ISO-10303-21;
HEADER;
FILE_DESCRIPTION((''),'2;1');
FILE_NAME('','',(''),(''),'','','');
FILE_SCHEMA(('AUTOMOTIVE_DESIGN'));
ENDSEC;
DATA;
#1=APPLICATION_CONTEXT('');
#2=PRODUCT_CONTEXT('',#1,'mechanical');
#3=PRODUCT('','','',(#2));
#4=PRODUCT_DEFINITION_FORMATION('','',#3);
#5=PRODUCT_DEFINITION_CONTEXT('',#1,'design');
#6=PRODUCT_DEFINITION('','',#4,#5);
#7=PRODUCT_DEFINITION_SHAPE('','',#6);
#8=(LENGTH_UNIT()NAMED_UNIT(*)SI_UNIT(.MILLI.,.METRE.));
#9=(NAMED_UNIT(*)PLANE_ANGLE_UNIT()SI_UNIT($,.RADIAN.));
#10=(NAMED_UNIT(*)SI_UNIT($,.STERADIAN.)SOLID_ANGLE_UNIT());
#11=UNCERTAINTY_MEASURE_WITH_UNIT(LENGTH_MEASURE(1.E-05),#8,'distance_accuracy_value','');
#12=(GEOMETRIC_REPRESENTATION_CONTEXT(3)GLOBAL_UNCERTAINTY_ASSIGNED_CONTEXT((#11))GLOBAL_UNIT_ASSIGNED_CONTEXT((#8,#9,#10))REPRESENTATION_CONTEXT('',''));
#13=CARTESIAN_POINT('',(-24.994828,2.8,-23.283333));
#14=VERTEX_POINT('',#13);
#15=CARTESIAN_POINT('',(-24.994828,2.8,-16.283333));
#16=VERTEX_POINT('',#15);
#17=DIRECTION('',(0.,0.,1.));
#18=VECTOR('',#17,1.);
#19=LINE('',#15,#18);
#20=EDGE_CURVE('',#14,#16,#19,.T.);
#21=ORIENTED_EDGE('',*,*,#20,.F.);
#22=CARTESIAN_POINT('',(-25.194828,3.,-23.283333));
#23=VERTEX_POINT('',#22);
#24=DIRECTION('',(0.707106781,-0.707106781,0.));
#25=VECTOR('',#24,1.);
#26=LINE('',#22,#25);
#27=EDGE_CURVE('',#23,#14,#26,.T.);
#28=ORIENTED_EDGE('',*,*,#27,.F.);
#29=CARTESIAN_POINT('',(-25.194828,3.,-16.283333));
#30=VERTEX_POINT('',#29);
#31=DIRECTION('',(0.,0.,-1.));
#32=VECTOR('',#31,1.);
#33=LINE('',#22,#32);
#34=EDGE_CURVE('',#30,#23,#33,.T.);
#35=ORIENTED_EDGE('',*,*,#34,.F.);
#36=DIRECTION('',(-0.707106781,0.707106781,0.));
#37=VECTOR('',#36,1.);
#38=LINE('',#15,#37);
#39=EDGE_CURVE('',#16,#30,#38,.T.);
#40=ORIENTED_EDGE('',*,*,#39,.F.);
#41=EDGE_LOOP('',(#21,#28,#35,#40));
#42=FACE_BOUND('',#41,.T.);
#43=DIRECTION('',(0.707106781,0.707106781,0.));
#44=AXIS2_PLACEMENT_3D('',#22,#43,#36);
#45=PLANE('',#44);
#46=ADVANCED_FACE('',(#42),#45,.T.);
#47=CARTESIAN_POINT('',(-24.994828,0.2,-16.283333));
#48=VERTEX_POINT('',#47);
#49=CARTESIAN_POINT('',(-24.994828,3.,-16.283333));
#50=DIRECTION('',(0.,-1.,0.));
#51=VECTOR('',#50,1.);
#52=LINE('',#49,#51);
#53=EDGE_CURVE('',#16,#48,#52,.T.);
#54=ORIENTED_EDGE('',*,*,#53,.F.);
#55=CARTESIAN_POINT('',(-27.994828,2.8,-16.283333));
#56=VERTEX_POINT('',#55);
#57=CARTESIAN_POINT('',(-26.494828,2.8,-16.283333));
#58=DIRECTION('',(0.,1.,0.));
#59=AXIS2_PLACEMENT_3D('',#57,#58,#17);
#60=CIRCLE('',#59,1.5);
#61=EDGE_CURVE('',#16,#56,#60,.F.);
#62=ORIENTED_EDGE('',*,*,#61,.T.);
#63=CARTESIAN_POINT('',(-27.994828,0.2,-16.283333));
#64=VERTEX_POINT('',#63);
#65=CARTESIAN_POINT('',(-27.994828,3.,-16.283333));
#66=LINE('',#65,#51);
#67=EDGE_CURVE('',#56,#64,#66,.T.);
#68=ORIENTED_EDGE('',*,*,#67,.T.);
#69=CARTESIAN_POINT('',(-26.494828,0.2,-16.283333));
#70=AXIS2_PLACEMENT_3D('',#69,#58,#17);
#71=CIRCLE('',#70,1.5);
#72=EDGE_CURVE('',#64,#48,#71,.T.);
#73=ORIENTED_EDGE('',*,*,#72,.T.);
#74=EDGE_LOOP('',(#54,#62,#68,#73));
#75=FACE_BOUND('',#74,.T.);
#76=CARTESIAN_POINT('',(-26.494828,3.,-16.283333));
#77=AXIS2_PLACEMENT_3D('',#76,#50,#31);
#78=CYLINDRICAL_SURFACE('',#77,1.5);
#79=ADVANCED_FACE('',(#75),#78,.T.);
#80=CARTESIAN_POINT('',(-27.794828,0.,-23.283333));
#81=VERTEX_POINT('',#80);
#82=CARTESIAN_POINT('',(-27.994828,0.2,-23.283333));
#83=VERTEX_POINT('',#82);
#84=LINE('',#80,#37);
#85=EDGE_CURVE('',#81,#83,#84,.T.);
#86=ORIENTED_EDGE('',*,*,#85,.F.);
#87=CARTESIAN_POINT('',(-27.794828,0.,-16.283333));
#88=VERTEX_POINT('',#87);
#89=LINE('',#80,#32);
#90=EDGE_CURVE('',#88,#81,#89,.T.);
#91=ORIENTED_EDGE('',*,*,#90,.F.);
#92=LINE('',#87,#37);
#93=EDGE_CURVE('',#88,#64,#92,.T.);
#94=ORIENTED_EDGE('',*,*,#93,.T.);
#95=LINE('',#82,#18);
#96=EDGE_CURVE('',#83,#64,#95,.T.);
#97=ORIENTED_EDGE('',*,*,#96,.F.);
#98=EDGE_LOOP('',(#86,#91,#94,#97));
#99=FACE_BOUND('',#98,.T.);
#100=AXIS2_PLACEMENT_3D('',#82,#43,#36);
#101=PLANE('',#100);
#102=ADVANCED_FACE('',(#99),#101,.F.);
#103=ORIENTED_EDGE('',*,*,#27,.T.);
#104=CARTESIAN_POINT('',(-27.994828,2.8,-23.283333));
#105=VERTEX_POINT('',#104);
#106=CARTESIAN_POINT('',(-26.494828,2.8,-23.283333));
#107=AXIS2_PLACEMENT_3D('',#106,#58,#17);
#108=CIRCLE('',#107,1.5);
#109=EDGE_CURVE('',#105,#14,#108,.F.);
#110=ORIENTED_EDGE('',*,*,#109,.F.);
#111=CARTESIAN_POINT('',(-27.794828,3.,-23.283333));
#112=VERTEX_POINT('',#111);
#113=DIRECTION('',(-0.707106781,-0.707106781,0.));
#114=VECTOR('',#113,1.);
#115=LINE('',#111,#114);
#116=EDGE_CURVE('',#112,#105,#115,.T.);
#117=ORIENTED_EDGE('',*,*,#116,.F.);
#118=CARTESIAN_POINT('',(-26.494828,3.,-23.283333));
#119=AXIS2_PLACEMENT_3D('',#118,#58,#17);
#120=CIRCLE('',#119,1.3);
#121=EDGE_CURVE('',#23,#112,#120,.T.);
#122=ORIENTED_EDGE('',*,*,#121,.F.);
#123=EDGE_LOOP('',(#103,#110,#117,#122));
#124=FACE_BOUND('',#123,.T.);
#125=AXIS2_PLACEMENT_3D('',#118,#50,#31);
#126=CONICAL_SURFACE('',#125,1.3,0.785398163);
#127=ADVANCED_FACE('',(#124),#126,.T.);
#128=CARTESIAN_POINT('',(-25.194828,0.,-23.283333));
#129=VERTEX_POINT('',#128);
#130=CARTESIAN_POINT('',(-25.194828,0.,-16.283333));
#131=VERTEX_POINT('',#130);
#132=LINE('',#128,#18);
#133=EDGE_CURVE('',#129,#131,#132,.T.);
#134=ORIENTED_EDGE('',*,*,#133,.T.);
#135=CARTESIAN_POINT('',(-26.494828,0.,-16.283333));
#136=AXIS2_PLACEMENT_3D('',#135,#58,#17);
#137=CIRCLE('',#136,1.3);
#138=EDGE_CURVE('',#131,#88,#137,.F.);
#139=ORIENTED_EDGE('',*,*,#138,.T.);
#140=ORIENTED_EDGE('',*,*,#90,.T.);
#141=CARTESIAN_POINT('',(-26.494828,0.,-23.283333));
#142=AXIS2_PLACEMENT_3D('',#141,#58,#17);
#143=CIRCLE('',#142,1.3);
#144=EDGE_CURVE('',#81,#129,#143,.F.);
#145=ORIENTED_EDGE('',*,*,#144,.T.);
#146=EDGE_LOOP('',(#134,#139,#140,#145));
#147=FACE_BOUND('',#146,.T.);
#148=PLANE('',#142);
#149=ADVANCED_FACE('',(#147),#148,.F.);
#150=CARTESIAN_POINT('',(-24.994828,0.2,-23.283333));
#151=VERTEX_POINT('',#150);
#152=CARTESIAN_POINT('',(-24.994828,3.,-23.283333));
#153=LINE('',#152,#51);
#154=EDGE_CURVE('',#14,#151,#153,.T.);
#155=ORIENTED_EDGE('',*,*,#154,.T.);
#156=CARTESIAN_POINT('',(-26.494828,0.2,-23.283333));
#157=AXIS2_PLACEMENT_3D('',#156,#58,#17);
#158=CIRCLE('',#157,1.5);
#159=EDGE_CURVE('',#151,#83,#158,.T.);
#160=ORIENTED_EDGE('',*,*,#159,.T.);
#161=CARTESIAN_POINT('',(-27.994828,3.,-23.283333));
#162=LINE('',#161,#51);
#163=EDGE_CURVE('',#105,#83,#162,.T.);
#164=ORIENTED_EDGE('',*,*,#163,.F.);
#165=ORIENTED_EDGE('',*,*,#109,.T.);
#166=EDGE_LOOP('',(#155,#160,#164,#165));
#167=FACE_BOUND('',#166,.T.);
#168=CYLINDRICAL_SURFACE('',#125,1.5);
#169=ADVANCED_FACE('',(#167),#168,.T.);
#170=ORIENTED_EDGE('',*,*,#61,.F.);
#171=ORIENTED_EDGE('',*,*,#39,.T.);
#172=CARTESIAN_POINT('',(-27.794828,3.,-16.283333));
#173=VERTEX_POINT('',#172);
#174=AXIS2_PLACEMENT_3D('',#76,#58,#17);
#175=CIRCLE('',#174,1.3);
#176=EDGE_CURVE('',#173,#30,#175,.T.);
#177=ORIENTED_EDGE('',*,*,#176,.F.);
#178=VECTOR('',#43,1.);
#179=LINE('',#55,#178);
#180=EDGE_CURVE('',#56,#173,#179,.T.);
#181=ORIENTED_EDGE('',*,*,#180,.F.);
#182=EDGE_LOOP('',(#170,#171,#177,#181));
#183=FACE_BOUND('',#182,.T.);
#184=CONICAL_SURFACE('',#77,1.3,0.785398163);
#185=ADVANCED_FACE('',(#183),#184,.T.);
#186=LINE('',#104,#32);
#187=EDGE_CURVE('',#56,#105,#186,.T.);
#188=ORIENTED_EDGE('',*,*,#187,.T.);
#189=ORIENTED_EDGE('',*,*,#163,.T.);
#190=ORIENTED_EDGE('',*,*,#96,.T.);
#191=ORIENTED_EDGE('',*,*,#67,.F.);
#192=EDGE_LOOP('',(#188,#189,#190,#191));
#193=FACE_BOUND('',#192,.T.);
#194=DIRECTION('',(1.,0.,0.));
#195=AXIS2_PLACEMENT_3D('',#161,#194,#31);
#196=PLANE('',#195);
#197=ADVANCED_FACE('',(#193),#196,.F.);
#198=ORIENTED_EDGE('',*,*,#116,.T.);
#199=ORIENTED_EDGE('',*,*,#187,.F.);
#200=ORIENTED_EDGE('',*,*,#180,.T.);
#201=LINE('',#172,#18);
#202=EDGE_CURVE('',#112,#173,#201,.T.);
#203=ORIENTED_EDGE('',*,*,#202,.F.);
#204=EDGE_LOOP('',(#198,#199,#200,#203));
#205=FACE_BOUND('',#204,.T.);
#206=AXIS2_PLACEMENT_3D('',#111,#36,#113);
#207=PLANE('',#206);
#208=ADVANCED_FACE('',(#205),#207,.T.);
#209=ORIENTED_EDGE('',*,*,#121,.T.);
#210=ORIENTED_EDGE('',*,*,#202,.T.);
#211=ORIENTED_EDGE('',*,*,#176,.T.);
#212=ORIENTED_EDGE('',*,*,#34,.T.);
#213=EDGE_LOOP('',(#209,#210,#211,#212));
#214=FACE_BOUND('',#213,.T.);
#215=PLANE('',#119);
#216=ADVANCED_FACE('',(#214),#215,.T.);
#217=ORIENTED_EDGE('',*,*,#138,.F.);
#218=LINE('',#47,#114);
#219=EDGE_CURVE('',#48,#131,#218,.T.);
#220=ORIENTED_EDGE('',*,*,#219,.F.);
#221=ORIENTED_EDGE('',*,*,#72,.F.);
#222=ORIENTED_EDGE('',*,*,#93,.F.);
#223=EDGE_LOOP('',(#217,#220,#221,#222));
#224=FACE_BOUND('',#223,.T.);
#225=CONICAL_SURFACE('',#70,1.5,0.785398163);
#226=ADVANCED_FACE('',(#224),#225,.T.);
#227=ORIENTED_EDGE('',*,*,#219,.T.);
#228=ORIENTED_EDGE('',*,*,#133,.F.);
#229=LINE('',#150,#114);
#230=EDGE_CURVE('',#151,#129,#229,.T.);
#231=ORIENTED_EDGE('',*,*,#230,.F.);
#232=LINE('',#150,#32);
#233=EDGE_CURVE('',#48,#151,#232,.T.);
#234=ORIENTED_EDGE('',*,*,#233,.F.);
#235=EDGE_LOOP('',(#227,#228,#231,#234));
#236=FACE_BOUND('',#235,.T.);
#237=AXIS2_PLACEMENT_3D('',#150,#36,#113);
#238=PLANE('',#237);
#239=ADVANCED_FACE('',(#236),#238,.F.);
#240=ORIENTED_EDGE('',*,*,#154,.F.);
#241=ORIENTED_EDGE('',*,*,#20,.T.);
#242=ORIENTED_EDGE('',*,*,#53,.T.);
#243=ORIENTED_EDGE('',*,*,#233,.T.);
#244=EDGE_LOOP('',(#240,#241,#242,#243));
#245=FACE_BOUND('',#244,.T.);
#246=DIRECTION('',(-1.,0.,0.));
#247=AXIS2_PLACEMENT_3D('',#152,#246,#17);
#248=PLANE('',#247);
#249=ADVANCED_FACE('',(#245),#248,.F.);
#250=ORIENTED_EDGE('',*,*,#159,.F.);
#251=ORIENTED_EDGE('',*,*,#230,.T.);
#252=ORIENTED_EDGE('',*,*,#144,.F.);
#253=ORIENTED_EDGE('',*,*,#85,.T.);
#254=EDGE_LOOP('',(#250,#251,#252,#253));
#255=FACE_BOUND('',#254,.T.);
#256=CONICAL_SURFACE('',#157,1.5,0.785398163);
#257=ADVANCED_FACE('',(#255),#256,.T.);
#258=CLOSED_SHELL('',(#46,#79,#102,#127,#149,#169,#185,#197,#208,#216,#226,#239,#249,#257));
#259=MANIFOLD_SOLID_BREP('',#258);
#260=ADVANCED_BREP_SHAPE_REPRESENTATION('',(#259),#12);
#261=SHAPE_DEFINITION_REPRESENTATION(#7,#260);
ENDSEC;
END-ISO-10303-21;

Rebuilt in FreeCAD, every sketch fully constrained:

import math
import FreeCAD as App
import Part
import Sketcher
from FreeCAD import Vector
Q = App.Units.Quantity


def edges_at(feature, points):
    """Names of the edges that pass closest to the given points."""
    edges = feature.Shape.Edges
    near = lambda p: min(range(len(edges)), key=lambda i: edges[i].distToShape(Part.Vertex(*p))[0])
    return sorted({f"Edge{near(p) + 1}" for p in points})

doc = App.newDocument("Part")
body = doc.addObject("PartDesign::Body", "Body")

sketch1 = body.newObject("Sketcher::SketchObject", "Sketch")
sketch1.AttachmentSupport = (doc.getObject("XZ_Plane"), [""])
sketch1.MapMode = "FlatFace"
sketch1.addGeometry(Part.LineSegment(Vector(-24.994828, -16.283333, 0), Vector(-24.994828, -23.283333, 0)), False)
sketch1.addGeometry(Part.ArcOfCircle(Part.Circle(Vector(-26.494828, -23.283333, 0), Vector(0, 0, 1), 1.5), math.radians(180), math.radians(360)), False)
sketch1.addGeometry(Part.LineSegment(Vector(-27.994828, -23.283333, 0), Vector(-27.994828, -16.283333, 0)), False)
sketch1.addGeometry(Part.ArcOfCircle(Part.Circle(Vector(-26.494828, -16.283333, 0), Vector(0, 0, 1), 1.5), math.radians(0), math.radians(180)), False)
sketch1.addConstraint(Sketcher.Constraint("Tangent", 0, 2, 1, 2))
sketch1.addConstraint(Sketcher.Constraint("Tangent", 1, 1, 2, 1))
sketch1.addConstraint(Sketcher.Constraint("Tangent", 2, 2, 3, 2))
sketch1.addConstraint(Sketcher.Constraint("Tangent", 3, 1, 0, 1))
sketch1.addConstraint(Sketcher.Constraint("Vertical", 0))
sketch1.addConstraint(Sketcher.Constraint("Vertical", 2))
sketch1.addConstraint(Sketcher.Constraint("Radius", 1, Q("1.5 mm")))
sketch1.addConstraint(Sketcher.Constraint("DistanceY", 0, 2, 0, 1, Q("7 mm")))
sketch1.addConstraint(Sketcher.Constraint("DistanceX", 1, 3, -1, 1, Q("26.494828 mm")))
sketch1.addConstraint(Sketcher.Constraint("DistanceY", 1, 3, -1, 1, Q("23.283333 mm")))
pad1 = body.newObject("PartDesign::Pad", "Pad")
pad1.Profile = sketch1
pad1.Length = 3
pad1.Reversed = True
doc.recompute()

chamfer = body.newObject("PartDesign::Chamfer", "Chamfer")
chamfer.Base = (pad1, edges_at(pad1, [
    (-26.495, 3, -14.783),
    (-24.995, 3, -19.783),
    (-26.495, 3, -24.783),
    (-24.995, 0, -19.783),
    (-26.495, 0, -14.783),
    (-27.995, 0, -19.783),
    (-26.495, 0, -24.783),
    (-27.995, 3, -19.783),
]))
chamfer.Size = 0.2

doc.recompute()
